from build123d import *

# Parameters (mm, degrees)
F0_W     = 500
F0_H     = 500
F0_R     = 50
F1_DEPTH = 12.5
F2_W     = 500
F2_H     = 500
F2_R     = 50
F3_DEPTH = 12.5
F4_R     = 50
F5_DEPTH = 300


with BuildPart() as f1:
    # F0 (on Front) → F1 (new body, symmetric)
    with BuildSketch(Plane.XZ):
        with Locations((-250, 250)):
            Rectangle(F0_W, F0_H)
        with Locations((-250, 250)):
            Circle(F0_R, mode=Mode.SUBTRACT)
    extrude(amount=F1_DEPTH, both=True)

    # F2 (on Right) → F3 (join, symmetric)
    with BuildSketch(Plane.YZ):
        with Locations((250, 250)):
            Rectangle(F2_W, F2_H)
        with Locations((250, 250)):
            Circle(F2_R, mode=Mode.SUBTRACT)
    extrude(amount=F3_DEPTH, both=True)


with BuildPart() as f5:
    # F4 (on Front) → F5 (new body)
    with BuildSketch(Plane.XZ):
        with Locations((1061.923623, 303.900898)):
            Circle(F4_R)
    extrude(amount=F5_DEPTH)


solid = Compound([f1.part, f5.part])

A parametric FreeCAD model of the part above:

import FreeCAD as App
import Part
import Sketcher
Q = App.Units.Quantity


def add_polygon(sketch, points):
    """Adds a closed chain of lines whose ends are joined by coincident constraints."""
    first, n = sketch.GeometryCount, len(points)
    for a, b in zip(points, points[1:] + points[:1]):
        sketch.addGeometry(Part.LineSegment(App.Vector(*a, 0), App.Vector(*b, 0)), False)
    for i in range(n):
        sketch.addConstraint(Sketcher.Constraint("Coincident", first + i, 2, first + (i + 1) % n, 1))

doc = App.newDocument("Part")
body = doc.addObject("PartDesign::Body", "Body")

sketch1 = body.newObject("Sketcher::SketchObject", "Sketch")
sketch1.AttachmentSupport = (doc.getObject("XZ_Plane"), [""])
sketch1.MapMode = "FlatFace"
add_polygon(sketch1, [(-500, 500), (-500, 0), (0, 0), (0, 500)])
sketch1.addGeometry(Part.Circle(App.Vector(-250, 250, 0), App.Vector(0, 0, 1), 50), False)
sketch1.addConstraint(Sketcher.Constraint("Vertical", 0))
sketch1.addConstraint(Sketcher.Constraint("Horizontal", 1))
sketch1.addConstraint(Sketcher.Constraint("Vertical", 2))
sketch1.addConstraint(Sketcher.Constraint("Horizontal", 3))
sketch1.addConstraint(Sketcher.Constraint("Coincident", 1, 2, -1, 1))
sketch1.addConstraint(Sketcher.Constraint("Equal", 3, 0))
sketch1.addConstraint(Sketcher.Constraint("Diameter", 4, Q("100 mm")))
sketch1.addConstraint(Sketcher.Constraint("DistanceX", 1, 1, 1, 2, Q("500 mm")))
sketch1.addConstraint(Sketcher.Constraint("DistanceX", 4, 3, -1, 1, Q("250 mm")))
sketch1.addConstraint(Sketcher.Constraint("DistanceY", -1, 1, 4, 3, Q("250 mm")))
pad1 = body.newObject("PartDesign::Pad", "Pad")
pad1.Profile = sketch1
pad1.Length = 25
pad1.Midplane = True

sketch2 = body.newObject("Sketcher::SketchObject", "Sketch001")
sketch2.AttachmentSupport = (doc.getObject("YZ_Plane"), [""])
sketch2.MapMode = "FlatFace"
add_polygon(sketch2, [(0, 500), (0, 0), (500, 0), (500, 500)])
sketch2.addGeometry(Part.Circle(App.Vector(250, 250, 0), App.Vector(0, 0, 1), 50), False)
sketch2.addConstraint(Sketcher.Constraint("Vertical", 0))
sketch2.addConstraint(Sketcher.Constraint("Horizontal", 1))
sketch2.addConstraint(Sketcher.Constraint("Vertical", 2))
sketch2.addConstraint(Sketcher.Constraint("Horizontal", 3))
sketch2.addConstraint(Sketcher.Constraint("Coincident", 0, 2, -1, 1))
sketch2.addConstraint(Sketcher.Constraint("Equal", 3, 0))
sketch2.addConstraint(Sketcher.Constraint("Diameter", 4, Q("100 mm")))
sketch2.addConstraint(Sketcher.Constraint("DistanceX", 1, 1, 1, 2, Q("500 mm")))
sketch2.addConstraint(Sketcher.Constraint("DistanceX", -1, 1, 4, 3, Q("250 mm")))
sketch2.addConstraint(Sketcher.Constraint("DistanceY", -1, 1, 4, 3, Q("250 mm")))
pad2 = body.newObject("PartDesign::Pad", "Pad001")
pad2.Profile = sketch2
pad2.Length = 25
pad2.Midplane = True
body2 = doc.addObject("PartDesign::Body", "Body001")

sketch3 = body2.newObject("Sketcher::SketchObject", "Sketch002")
sketch3.AttachmentSupport = (doc.getObject("XZ_Plane001"), [""])
sketch3.MapMode = "FlatFace"
sketch3.addGeometry(Part.Circle(App.Vector(1062, 304, 0), App.Vector(0, 0, 1), 50), False)
sketch3.addConstraint(Sketcher.Constraint("Diameter", 0, Q("100 mm")))
sketch3.addConstraint(Sketcher.Constraint("DistanceY", -1, 1, 0, 3, Q("303.900898 mm")))
sketch3.addConstraint(Sketcher.Constraint("DistanceX", -1, 1, 0, 3, Q("1061.923623 mm")))
pad3 = body2.newObject("PartDesign::Pad", "Pad002")
pad3.Profile = sketch3
pad3.Length = 300

doc.recompute()
